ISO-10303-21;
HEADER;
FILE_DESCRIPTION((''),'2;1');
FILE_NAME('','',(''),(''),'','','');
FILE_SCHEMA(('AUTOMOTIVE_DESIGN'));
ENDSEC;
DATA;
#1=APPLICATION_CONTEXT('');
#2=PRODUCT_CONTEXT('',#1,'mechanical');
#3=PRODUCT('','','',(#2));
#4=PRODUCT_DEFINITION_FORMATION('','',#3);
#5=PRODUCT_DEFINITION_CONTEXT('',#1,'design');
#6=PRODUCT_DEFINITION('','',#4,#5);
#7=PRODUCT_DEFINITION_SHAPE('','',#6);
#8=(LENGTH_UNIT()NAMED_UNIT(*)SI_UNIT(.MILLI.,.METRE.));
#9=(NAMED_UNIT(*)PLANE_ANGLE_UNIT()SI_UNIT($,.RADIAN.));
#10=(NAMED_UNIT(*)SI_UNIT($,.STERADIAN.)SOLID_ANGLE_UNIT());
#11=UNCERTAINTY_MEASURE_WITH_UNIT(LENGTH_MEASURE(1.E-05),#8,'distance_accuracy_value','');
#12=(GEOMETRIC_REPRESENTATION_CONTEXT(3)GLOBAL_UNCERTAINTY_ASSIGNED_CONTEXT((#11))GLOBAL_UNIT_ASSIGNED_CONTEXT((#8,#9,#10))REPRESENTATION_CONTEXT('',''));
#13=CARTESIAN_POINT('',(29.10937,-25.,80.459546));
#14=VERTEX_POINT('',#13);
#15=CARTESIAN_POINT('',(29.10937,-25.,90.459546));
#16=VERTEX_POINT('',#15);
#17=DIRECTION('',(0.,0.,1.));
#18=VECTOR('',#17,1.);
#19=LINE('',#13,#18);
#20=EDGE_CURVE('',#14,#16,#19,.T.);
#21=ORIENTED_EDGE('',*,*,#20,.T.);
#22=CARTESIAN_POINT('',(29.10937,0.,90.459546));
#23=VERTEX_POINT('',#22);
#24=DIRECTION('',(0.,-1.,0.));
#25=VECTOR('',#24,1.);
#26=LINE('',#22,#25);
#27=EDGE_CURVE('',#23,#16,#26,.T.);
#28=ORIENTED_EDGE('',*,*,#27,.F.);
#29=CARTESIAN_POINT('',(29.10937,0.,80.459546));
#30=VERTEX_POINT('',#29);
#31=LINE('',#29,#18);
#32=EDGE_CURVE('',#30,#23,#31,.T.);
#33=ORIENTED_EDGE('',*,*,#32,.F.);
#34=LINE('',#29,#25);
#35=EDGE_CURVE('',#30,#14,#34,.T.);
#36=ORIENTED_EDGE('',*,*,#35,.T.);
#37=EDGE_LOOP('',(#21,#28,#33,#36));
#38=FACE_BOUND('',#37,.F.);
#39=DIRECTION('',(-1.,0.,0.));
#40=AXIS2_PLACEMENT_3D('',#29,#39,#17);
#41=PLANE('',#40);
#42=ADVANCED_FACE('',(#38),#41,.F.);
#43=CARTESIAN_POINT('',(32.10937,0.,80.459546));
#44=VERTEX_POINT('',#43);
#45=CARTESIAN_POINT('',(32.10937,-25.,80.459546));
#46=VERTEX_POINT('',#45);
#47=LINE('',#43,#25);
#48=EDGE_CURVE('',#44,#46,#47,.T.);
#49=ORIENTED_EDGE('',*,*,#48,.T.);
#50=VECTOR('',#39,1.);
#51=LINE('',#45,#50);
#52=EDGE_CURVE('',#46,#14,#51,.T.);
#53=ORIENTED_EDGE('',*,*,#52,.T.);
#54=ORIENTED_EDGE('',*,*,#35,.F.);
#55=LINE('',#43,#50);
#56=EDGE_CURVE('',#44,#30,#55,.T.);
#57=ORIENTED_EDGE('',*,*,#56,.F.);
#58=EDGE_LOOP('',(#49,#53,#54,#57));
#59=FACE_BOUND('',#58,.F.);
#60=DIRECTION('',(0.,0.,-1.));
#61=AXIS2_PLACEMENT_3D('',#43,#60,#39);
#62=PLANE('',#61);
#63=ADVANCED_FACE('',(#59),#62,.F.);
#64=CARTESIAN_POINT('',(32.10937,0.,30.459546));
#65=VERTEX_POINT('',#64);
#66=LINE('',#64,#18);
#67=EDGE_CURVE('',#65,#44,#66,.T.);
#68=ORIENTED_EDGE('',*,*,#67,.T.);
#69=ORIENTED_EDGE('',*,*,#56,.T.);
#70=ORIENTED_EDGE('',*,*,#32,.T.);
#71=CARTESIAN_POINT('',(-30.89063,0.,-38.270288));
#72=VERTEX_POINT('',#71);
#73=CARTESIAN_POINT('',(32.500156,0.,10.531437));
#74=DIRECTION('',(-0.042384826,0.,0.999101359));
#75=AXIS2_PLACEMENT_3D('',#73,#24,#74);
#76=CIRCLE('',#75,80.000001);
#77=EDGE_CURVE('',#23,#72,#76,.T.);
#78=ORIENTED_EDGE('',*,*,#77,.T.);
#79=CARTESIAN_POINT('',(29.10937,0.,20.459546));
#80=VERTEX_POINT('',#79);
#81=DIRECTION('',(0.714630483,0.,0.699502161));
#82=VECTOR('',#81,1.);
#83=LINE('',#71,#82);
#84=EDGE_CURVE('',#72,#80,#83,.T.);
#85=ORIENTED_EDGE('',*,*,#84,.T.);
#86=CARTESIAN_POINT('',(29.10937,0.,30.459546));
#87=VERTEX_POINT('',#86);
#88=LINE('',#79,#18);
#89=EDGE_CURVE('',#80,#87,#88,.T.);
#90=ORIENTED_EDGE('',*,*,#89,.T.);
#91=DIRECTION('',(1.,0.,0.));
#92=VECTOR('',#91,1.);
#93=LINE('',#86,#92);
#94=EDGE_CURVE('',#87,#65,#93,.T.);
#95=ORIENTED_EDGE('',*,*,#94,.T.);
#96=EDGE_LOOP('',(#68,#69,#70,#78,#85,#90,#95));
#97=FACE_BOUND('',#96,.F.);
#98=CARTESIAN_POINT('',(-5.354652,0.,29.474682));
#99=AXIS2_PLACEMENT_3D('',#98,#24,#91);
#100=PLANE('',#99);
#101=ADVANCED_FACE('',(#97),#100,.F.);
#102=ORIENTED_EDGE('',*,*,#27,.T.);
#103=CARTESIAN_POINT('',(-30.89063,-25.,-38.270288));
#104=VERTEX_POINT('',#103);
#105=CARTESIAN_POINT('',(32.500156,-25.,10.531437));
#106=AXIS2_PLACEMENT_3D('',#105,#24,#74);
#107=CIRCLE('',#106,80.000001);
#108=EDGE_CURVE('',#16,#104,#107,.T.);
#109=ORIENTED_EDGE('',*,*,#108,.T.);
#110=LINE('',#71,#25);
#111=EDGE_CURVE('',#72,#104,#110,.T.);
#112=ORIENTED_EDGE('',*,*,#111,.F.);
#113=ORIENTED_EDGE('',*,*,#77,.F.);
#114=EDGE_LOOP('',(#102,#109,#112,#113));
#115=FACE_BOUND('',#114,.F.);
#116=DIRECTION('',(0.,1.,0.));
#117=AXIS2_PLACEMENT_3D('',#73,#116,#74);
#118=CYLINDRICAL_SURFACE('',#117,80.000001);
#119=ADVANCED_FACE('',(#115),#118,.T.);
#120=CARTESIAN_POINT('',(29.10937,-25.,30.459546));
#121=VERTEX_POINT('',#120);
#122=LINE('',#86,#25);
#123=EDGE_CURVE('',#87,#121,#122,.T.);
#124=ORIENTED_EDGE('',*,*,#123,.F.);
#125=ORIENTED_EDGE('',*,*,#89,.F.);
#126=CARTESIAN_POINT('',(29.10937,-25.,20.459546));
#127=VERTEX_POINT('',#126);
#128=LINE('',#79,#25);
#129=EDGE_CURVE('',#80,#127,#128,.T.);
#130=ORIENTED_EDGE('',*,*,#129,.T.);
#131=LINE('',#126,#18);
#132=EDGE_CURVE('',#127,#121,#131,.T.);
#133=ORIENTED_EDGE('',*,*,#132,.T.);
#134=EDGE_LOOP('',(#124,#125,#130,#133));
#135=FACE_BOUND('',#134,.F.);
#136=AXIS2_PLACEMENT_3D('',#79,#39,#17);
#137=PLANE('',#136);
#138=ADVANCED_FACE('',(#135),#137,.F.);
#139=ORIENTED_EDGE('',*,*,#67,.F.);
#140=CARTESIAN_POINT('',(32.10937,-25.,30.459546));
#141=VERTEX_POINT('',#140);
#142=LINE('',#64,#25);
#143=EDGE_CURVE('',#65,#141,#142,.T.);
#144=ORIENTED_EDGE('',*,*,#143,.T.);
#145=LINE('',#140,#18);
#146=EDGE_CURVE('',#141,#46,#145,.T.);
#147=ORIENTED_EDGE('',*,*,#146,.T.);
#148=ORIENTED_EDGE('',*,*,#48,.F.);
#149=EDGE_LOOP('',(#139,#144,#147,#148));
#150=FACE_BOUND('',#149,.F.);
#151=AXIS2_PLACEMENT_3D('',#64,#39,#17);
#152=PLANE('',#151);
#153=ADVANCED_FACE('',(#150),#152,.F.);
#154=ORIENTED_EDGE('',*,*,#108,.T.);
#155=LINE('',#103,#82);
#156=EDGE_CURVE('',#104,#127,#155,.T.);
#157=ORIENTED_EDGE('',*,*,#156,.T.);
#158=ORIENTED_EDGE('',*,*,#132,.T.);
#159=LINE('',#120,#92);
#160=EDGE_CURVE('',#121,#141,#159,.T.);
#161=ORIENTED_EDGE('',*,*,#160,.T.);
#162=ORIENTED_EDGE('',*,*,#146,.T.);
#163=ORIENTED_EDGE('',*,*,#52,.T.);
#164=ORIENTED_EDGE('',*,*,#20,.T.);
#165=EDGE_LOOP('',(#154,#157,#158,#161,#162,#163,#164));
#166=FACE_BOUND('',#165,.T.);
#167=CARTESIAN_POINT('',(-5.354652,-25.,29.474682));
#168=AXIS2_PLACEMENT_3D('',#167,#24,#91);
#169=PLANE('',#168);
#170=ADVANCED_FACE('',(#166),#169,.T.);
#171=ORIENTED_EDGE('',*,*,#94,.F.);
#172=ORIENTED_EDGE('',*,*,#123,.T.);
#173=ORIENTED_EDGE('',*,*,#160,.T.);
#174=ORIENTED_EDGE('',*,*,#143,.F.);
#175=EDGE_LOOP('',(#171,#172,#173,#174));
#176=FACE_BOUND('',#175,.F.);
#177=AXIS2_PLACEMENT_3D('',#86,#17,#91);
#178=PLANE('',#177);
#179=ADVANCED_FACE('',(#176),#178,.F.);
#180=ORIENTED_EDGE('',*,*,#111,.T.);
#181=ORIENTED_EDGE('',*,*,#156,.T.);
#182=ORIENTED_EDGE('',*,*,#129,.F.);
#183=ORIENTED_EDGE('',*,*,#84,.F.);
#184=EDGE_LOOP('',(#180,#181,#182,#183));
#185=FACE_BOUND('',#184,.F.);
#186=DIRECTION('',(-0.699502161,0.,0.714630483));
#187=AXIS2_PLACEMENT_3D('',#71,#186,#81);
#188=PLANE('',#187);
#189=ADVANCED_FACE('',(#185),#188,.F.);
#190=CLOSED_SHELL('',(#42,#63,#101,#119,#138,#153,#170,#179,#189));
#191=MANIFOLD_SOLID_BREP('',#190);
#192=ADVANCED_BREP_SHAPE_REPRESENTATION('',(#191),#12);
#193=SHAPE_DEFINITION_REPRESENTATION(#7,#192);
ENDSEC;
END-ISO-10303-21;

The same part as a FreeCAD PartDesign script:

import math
import FreeCAD as App
import Part
import Sketcher
from FreeCAD import Vector
Q = App.Units.Quantity

doc = App.newDocument("Part")
body = doc.addObject("PartDesign::Body", "Body")

sketch1 = body.newObject("Sketcher::SketchObject", "Sketch")
sketch1.AttachmentSupport = (doc.getObject("XZ_Plane"), [""])
sketch1.MapMode = "FlatFace"
sketch1.addGeometry([
    Part.LineSegment(Vector(29.10937, 80.459546, 0), Vector(29.10937, 90.459546, 0)),
    Part.ArcOfCircle(Part.Circle(Vector(32.500156, 10.531437, 0), Vector(0, 0, 1), 80.000001), math.radians(92.429199), math.radians(217.591061)),
    Part.LineSegment(Vector(-30.89063, -38.270288, 0), Vector(29.10937, 20.459546, 0)),
    Part.LineSegment(Vector(29.10937, 20.459546, 0), Vector(29.10937, 30.459546, 0)),
    Part.LineSegment(Vector(29.10937, 30.459546, 0), Vector(32.10937, 30.459546, 0)),
    Part.LineSegment(Vector(32.10937, 30.459546, 0), Vector(32.10937, 80.459546, 0)),
    Part.LineSegment(Vector(32.10937, 80.459546, 0), Vector(29.10937, 80.459546, 0)),
], False)
sketch1.addConstraint([
    Sketcher.Constraint("Coincident", 0, 2, 1, 1),
    Sketcher.Constraint("Coincident", 1, 2, 2, 1),
    Sketcher.Constraint("Coincident", 2, 2, 3, 1),
    Sketcher.Constraint("Coincident", 3, 2, 4, 1),
    Sketcher.Constraint("Coincident", 4, 2, 5, 1),
    Sketcher.Constraint("Coincident", 5, 2, 6, 1),
    Sketcher.Constraint("Coincident", 6, 2, 0, 1),
    Sketcher.Constraint("Vertical", 0),
    Sketcher.Constraint("Vertical", 3),
    Sketcher.Constraint("Horizontal", 4),
    Sketcher.Constraint("Vertical", 5),
    Sketcher.Constraint("Horizontal", 6),
    Sketcher.Constraint("Vertical", 0, 2, 2, 2),
    Sketcher.Constraint("Equal", 0, 3),
    Sketcher.Constraint("Radius", 1, Q("80.000001 mm")),
    Sketcher.Constraint("DistanceX", 4, 1, 4, 2, Q("3 mm")),
    Sketcher.Constraint("DistanceY", 0, 1, 0, 2, Q("10 mm")),
    Sketcher.Constraint("DistanceY", 5, 1, 5, 2, Q("50 mm")),
    Sketcher.Constraint("DistanceX", 1, 2, 0, 2, Q("60 mm")),
    Sketcher.Constraint("DistanceX", -1, 1, 0, 2, Q("29.10937 mm")),
    Sketcher.Constraint("DistanceY", 1, 2, -1, 1, Q("38.270288 mm")),
    Sketcher.Constraint("DistanceY", 1, 3, 0, 2, Q("79.928109 mm")),
])
pad1 = body.newObject("PartDesign::Pad", "Pad")
pad1.Profile = sketch1
pad1.Length = 25

doc.recompute()
